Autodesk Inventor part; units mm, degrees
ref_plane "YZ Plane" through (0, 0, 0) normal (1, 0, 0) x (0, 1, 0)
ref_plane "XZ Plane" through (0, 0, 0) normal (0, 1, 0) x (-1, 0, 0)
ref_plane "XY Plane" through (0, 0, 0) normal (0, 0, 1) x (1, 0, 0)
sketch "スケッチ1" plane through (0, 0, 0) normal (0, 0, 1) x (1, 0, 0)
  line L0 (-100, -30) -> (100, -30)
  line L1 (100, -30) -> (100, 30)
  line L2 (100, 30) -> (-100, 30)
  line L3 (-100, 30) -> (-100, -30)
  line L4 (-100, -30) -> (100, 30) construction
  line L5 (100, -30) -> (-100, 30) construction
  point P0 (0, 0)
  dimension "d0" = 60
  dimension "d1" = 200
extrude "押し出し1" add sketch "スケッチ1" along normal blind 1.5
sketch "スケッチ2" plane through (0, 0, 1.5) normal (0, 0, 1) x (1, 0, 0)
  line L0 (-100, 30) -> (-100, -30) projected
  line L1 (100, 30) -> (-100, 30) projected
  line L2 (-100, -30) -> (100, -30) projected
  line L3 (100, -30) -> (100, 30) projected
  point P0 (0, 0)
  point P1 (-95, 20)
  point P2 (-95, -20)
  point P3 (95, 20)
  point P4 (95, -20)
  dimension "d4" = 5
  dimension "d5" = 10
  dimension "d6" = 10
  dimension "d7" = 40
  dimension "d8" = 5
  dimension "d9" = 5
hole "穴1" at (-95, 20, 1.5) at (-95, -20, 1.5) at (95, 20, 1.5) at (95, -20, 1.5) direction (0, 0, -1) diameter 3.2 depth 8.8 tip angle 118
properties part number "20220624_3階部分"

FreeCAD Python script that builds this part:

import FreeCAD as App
import Part
import Sketcher
from FreeCAD import Vector
Q = App.Units.Quantity

doc = App.newDocument("Part")
body = doc.addObject("PartDesign::Body", "Body")

sketch1 = doc.addObject("Sketcher::SketchObject", "Sketch")
body.addObject(sketch1)
sketch1.AttachmentSupport = (doc.XY_Plane, [""])
sketch1.MapMode = "FlatFace"
sketch1.addGeometry([
    Part.LineSegment(Vector(-100, 30, 0), Vector(-100, -30, 0)),
    Part.LineSegment(Vector(-100, -30, 0), Vector(100, -30, 0)),
    Part.LineSegment(Vector(100, -30, 0), Vector(100, 30, 0)),
    Part.LineSegment(Vector(100, 30, 0), Vector(-100, 30, 0)),
], False)
sketch1.addConstraint([
    Sketcher.Constraint("Coincident", 0, 2, 1, 1),
    Sketcher.Constraint("Coincident", 1, 2, 2, 1),
    Sketcher.Constraint("Coincident", 2, 2, 3, 1),
    Sketcher.Constraint("Coincident", 3, 2, 0, 1),
    Sketcher.Constraint("Vertical", 0),
    Sketcher.Constraint("Horizontal", 1),
    Sketcher.Constraint("Vertical", 2),
    Sketcher.Constraint("Horizontal", 3),
    Sketcher.Constraint("Symmetric", 0, 2, 2, 2, -1, 1),
    Sketcher.Constraint("DistanceX", 1, 1, 1, 2, Q("200 mm")),
    Sketcher.Constraint("DistanceY", 0, 2, 0, 1, Q("60 mm")),
])
pad1 = doc.addObject("PartDesign::Pad", "Pad")
body.addObject(pad1)
pad1.Profile = sketch1
pad1.Length = 1.5

sketch2 = doc.addObject("Sketcher::SketchObject", "Sketch001")
body.addObject(sketch2)
sketch2.AttachmentSupport = (doc.XY_Plane, [""])
sketch2.MapMode = "FlatFace"
sketch2.AttachmentOffset = App.Placement(Vector(0, 0, 1.5), App.Rotation())
sketch2.addGeometry([
    Part.Circle(Vector(-95, 20, 0), Vector(0, 0, 1), 1.6),
    Part.Circle(Vector(-95, -20, 0), Vector(0, 0, 1), 1.6),
    Part.Circle(Vector(95, 20, 0), Vector(0, 0, 1), 1.6),
    Part.Circle(Vector(95, -20, 0), Vector(0, 0, 1), 1.6),
], False)
sketch2.addConstraint([
    Sketcher.Constraint("Equal", 0, 1),
    Sketcher.Constraint("Equal", 1, 2),
    Sketcher.Constraint("Equal", 2, 3),
    Sketcher.Constraint("Symmetric", 1, 3, 2, 3, -1, 1),
    Sketcher.Constraint("Symmetric", 0, 3, 3, 3, -1, 1),
    Sketcher.Constraint("Symmetric", 0, 3, 2, 3, -2),
    Sketcher.Constraint("Diameter", 0, Q("3.2 mm")),
    Sketcher.Constraint("DistanceX", 0, 3, -1, 1, Q("95 mm")),
    Sketcher.Constraint("DistanceY", -1, 1, 0, 3, Q("20 mm")),
])
doc.recompute()
hole = doc.addObject("PartDesign::Hole", "Hole")
body.addObject(hole)
hole.Profile = sketch2
hole.ThreadType = "None"
hole.Diameter = 3.2
hole.DepthType = "Dimension"
hole.Depth = 8.8
hole.DrillPoint = "Angled"
hole.DrillPointAngle = 118

doc.recompute()
